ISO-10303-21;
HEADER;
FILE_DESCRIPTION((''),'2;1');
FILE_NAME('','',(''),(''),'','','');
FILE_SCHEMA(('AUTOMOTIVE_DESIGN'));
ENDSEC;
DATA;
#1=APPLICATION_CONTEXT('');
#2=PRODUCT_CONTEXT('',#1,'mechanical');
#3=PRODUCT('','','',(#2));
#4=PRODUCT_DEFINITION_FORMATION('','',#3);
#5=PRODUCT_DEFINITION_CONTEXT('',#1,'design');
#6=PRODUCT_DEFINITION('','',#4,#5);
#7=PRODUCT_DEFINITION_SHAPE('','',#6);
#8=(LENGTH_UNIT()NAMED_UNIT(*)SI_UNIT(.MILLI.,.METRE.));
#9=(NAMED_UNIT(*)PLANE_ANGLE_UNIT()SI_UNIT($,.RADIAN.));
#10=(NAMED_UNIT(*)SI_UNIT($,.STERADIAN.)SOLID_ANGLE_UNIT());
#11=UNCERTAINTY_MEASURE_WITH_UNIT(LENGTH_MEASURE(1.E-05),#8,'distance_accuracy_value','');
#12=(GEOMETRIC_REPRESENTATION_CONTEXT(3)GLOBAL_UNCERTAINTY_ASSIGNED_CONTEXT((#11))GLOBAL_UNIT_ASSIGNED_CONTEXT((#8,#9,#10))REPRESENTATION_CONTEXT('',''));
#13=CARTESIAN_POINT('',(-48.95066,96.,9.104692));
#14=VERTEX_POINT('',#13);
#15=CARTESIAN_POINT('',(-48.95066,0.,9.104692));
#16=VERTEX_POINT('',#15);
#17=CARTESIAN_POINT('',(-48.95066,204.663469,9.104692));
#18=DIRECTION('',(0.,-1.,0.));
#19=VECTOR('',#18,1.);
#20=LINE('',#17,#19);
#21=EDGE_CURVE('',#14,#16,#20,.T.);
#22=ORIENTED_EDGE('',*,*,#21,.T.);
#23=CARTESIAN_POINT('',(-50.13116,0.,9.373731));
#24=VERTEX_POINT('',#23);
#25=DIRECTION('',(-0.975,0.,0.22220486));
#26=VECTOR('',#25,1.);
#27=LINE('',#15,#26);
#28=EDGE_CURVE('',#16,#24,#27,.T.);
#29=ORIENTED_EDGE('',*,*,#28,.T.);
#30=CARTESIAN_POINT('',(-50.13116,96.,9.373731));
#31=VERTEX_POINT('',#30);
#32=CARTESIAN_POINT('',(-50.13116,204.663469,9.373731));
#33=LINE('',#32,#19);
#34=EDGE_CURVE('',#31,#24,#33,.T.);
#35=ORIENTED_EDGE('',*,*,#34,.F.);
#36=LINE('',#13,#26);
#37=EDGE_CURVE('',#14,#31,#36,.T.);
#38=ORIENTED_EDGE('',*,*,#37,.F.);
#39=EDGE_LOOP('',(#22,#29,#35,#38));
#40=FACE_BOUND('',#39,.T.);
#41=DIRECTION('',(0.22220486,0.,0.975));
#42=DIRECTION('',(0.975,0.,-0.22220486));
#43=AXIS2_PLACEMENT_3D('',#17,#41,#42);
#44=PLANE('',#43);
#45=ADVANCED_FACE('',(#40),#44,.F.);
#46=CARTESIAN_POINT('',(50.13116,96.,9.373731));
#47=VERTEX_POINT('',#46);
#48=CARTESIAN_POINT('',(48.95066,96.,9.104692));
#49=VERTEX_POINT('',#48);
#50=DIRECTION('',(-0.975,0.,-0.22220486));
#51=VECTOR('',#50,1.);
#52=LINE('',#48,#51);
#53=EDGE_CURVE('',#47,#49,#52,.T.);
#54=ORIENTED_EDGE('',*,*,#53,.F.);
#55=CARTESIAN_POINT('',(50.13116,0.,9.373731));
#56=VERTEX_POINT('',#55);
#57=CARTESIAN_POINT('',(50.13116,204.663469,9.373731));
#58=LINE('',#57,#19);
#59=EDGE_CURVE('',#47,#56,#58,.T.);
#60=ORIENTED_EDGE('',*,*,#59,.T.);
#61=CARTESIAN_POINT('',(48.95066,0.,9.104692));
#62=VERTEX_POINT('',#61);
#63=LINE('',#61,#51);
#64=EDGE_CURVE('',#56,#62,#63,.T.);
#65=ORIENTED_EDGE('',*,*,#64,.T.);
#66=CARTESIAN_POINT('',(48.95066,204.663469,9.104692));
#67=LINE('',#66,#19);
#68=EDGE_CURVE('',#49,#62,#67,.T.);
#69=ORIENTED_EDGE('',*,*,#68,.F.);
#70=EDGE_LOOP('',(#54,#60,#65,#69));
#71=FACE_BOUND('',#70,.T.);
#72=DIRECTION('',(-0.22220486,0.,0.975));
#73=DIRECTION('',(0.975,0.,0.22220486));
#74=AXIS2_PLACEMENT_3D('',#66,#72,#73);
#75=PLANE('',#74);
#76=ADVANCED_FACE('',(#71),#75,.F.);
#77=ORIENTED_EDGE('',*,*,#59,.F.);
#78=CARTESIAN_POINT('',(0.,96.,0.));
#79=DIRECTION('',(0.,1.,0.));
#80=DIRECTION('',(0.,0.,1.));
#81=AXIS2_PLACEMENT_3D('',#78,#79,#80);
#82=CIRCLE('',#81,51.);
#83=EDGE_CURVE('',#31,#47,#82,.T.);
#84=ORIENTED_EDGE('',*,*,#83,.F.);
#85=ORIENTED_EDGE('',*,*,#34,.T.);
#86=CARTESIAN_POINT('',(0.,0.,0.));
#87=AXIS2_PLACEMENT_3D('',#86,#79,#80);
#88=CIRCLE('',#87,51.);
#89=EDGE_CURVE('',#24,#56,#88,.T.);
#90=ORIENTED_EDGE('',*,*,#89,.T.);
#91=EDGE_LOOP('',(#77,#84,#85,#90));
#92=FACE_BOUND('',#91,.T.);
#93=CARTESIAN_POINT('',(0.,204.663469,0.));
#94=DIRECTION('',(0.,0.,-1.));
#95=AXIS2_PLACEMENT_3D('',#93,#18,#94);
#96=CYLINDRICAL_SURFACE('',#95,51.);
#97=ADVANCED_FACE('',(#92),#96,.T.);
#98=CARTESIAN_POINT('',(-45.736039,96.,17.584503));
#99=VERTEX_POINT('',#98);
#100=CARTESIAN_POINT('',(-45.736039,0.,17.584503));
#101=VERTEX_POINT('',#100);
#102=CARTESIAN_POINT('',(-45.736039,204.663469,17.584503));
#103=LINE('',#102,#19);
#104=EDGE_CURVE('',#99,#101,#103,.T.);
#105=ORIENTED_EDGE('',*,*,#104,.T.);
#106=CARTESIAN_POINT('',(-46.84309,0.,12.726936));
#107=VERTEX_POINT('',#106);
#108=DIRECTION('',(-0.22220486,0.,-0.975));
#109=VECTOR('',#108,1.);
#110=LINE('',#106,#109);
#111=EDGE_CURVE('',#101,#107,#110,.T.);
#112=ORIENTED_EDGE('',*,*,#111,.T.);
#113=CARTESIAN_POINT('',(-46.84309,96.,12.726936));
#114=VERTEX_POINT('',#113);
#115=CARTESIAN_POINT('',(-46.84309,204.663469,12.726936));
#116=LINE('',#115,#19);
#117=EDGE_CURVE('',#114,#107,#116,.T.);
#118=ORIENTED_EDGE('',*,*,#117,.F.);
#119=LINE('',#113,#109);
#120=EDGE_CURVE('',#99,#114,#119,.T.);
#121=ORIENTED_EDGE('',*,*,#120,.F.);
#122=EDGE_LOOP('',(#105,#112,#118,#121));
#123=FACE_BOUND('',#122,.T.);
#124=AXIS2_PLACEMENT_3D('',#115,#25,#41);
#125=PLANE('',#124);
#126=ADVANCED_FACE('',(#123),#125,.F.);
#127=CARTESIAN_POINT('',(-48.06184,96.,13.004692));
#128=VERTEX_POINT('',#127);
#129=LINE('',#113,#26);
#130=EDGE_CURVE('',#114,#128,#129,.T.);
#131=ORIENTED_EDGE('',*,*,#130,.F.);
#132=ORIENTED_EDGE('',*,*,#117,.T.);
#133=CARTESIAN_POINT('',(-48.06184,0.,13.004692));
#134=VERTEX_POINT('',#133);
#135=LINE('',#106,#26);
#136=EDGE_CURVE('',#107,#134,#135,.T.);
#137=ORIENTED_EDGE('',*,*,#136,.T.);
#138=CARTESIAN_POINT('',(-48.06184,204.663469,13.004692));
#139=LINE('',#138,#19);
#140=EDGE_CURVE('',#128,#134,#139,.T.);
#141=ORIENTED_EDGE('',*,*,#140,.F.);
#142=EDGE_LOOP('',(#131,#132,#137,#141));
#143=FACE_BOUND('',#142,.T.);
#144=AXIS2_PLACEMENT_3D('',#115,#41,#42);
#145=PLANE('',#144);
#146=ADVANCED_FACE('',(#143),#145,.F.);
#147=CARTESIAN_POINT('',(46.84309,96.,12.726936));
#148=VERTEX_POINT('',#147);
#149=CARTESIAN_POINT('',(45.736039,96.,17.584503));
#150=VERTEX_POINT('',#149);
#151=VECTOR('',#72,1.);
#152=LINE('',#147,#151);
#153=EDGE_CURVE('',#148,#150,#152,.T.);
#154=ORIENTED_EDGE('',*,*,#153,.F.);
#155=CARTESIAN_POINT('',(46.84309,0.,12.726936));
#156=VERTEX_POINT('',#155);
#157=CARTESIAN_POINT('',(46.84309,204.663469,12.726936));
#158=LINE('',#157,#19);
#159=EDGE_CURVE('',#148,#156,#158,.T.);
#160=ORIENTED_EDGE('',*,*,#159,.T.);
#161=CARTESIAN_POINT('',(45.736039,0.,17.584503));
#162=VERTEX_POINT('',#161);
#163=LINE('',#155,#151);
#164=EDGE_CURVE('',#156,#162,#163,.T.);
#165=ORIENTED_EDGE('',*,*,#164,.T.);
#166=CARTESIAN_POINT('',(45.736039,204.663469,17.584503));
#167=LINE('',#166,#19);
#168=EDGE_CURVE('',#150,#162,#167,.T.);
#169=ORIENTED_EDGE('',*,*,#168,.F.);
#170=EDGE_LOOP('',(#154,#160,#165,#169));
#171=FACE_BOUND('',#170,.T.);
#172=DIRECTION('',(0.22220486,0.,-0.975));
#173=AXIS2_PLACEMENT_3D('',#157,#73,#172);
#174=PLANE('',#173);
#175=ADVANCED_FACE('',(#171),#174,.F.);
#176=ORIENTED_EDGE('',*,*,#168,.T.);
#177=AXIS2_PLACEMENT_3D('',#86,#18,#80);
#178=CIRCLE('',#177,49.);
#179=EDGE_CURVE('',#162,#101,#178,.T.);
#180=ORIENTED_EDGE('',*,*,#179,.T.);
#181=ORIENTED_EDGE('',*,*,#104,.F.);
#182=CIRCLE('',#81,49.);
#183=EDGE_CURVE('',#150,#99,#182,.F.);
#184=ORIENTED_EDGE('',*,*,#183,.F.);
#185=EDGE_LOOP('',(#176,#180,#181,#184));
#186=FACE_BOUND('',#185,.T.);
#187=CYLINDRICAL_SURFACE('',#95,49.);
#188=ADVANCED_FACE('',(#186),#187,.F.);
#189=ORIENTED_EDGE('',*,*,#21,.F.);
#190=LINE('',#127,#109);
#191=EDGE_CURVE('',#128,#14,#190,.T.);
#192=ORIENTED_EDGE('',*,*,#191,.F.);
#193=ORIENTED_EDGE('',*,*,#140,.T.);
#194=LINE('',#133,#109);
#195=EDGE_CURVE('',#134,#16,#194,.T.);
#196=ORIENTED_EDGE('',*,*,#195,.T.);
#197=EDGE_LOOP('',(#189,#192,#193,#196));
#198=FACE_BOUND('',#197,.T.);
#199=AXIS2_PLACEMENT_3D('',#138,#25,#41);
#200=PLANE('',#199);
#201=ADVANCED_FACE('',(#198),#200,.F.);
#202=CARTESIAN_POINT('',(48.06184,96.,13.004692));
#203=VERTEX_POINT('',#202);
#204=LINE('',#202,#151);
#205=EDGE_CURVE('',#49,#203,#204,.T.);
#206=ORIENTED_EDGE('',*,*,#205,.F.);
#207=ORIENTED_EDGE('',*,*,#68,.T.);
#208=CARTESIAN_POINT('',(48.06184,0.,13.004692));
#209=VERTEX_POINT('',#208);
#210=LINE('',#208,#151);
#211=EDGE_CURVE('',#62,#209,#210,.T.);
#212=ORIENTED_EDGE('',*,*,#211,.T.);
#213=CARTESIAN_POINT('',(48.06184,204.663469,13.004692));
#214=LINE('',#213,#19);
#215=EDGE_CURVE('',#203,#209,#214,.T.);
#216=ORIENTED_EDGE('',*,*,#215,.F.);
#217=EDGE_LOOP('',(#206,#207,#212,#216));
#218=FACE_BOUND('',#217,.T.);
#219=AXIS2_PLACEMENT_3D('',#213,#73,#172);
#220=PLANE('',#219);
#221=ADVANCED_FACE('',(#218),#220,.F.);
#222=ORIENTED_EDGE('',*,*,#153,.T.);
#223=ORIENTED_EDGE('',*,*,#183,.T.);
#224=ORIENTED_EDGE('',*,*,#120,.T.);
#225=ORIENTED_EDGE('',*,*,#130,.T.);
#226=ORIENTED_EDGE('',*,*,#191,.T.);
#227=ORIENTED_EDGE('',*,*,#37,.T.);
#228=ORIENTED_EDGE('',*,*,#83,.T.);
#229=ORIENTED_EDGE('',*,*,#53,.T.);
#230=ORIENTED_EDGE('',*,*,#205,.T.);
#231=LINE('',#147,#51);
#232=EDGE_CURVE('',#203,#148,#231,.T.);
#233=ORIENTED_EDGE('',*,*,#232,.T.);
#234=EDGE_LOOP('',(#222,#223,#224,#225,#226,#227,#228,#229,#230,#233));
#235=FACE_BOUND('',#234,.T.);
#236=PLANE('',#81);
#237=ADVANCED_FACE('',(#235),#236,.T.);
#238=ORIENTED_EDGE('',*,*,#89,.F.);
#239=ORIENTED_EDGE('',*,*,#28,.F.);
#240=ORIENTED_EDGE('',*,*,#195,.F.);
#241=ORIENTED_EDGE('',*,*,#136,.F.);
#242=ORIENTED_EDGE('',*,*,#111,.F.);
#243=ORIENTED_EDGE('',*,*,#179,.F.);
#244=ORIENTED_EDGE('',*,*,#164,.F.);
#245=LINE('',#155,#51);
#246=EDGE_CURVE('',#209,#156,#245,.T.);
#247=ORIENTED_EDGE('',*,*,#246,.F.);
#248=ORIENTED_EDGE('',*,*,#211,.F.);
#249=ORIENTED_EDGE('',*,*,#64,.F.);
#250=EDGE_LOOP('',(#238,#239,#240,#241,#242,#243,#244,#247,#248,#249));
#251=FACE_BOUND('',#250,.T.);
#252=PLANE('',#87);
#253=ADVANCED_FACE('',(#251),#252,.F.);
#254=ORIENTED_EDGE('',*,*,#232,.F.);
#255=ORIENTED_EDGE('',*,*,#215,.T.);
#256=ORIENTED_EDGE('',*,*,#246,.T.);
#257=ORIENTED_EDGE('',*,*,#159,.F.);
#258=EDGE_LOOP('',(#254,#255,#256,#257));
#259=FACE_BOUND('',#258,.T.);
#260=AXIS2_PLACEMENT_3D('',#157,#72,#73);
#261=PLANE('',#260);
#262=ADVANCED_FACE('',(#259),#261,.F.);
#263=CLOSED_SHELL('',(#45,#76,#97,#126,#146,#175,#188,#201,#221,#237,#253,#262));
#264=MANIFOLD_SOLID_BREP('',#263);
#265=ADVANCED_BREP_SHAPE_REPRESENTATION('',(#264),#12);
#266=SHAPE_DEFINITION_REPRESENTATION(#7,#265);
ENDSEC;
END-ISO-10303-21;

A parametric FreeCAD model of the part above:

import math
import FreeCAD as App
import Part
import Sketcher

V = App.Vector

doc = App.newDocument("Part")
body = doc.addObject("PartDesign::Body", "Body")

sketch1 = body.newObject("Sketcher::SketchObject", "Sketch")
sketch1.AttachmentSupport = (doc.getObject("XZ_Plane"), [""])
sketch1.MapMode = "FlatFace"
sketch1.addGeometry([
    Part.LineSegment(V(-46.8, 12.7, 0), V(-48.1, 13, 0)),
    Part.LineSegment(V(-48.1, 13, 0), V(-49, 9.1, 0)),
    Part.LineSegment(V(-49, 9.1, 0), V(-50.1, 9.4, 0)),
    Part.ArcOfCircle(Part.Circle(V(0, 0, 0), V(0, 0, 1), 51), math.radians(11), math.radians(169)),
    Part.LineSegment(V(50.1, 9.4, 0), V(49, 9.1, 0)),
    Part.LineSegment(V(49, 9.1, 0), V(48.1, 13, 0)),
    Part.LineSegment(V(48.1, 13, 0), V(46.8, 12.7, 0)),
    Part.LineSegment(V(46.8, 12.7, 0), V(45.7, 17.6, 0)),
    Part.ArcOfCircle(Part.Circle(V(0, 0, 0), V(0, 0, 1), 49), math.radians(21), math.radians(159)),
    Part.LineSegment(V(-45.7, 17.6, 0), V(-46.8, 12.7, 0)),
], False)
sketch1.addConstraint([
    Sketcher.Constraint("Coincident", 0, 2, 1, 1),
    Sketcher.Constraint("Coincident", 1, 2, 2, 1),
    Sketcher.Constraint("Coincident", 2, 2, 3, 2),
    Sketcher.Constraint("Coincident", 3, 1, 4, 1),
    Sketcher.Constraint("Coincident", 4, 2, 5, 1),
    Sketcher.Constraint("Coincident", 5, 2, 6, 1),
    Sketcher.Constraint("Coincident", 6, 2, 7, 1),
    Sketcher.Constraint("Coincident", 7, 2, 8, 1),
    Sketcher.Constraint("Coincident", 8, 2, 9, 1),
    Sketcher.Constraint("Coincident", 9, 2, 0, 1),
    Sketcher.Constraint("Coincident", 3, 3, -1, 1),
    Sketcher.Constraint("Coincident", 8, 3, -1, 1),
    Sketcher.Constraint("Symmetric", 1, 2, 4, 2, -2),
    Sketcher.Constraint("Symmetric", 0, 2, 5, 2, -2),
    Sketcher.Constraint("Symmetric", 6, 2, 9, 2, -2),
    Sketcher.Constraint("Perpendicular", 0, 1),
    Sketcher.Constraint("Perpendicular", 1, 2),
    Sketcher.Constraint("Perpendicular", 4, 5),
    Sketcher.Constraint("Perpendicular", 6, 7),
    Sketcher.Constraint("Perpendicular", 2, 9),
    Sketcher.Constraint("Radius", 3, 51.0),
    Sketcher.Constraint("Radius", 8, 49.0),
    Sketcher.Constraint("Distance", 1, 4.0),
    Sketcher.Constraint("DistanceY", 1, 2, 0, 2, 3.9),
    Sketcher.Constraint("Distance", 0, 1.25),
    Sketcher.Constraint("DistanceX", 0, 2, 3, 1, 98.193),
    Sketcher.Constraint("DistanceX", 2, 2, 1, 2, 1.1805),
])
pad1 = body.newObject("PartDesign::Pad", "Pad")
pad1.Profile = sketch1
pad1.Length = 96
pad1.Reversed = True

doc.recompute()
